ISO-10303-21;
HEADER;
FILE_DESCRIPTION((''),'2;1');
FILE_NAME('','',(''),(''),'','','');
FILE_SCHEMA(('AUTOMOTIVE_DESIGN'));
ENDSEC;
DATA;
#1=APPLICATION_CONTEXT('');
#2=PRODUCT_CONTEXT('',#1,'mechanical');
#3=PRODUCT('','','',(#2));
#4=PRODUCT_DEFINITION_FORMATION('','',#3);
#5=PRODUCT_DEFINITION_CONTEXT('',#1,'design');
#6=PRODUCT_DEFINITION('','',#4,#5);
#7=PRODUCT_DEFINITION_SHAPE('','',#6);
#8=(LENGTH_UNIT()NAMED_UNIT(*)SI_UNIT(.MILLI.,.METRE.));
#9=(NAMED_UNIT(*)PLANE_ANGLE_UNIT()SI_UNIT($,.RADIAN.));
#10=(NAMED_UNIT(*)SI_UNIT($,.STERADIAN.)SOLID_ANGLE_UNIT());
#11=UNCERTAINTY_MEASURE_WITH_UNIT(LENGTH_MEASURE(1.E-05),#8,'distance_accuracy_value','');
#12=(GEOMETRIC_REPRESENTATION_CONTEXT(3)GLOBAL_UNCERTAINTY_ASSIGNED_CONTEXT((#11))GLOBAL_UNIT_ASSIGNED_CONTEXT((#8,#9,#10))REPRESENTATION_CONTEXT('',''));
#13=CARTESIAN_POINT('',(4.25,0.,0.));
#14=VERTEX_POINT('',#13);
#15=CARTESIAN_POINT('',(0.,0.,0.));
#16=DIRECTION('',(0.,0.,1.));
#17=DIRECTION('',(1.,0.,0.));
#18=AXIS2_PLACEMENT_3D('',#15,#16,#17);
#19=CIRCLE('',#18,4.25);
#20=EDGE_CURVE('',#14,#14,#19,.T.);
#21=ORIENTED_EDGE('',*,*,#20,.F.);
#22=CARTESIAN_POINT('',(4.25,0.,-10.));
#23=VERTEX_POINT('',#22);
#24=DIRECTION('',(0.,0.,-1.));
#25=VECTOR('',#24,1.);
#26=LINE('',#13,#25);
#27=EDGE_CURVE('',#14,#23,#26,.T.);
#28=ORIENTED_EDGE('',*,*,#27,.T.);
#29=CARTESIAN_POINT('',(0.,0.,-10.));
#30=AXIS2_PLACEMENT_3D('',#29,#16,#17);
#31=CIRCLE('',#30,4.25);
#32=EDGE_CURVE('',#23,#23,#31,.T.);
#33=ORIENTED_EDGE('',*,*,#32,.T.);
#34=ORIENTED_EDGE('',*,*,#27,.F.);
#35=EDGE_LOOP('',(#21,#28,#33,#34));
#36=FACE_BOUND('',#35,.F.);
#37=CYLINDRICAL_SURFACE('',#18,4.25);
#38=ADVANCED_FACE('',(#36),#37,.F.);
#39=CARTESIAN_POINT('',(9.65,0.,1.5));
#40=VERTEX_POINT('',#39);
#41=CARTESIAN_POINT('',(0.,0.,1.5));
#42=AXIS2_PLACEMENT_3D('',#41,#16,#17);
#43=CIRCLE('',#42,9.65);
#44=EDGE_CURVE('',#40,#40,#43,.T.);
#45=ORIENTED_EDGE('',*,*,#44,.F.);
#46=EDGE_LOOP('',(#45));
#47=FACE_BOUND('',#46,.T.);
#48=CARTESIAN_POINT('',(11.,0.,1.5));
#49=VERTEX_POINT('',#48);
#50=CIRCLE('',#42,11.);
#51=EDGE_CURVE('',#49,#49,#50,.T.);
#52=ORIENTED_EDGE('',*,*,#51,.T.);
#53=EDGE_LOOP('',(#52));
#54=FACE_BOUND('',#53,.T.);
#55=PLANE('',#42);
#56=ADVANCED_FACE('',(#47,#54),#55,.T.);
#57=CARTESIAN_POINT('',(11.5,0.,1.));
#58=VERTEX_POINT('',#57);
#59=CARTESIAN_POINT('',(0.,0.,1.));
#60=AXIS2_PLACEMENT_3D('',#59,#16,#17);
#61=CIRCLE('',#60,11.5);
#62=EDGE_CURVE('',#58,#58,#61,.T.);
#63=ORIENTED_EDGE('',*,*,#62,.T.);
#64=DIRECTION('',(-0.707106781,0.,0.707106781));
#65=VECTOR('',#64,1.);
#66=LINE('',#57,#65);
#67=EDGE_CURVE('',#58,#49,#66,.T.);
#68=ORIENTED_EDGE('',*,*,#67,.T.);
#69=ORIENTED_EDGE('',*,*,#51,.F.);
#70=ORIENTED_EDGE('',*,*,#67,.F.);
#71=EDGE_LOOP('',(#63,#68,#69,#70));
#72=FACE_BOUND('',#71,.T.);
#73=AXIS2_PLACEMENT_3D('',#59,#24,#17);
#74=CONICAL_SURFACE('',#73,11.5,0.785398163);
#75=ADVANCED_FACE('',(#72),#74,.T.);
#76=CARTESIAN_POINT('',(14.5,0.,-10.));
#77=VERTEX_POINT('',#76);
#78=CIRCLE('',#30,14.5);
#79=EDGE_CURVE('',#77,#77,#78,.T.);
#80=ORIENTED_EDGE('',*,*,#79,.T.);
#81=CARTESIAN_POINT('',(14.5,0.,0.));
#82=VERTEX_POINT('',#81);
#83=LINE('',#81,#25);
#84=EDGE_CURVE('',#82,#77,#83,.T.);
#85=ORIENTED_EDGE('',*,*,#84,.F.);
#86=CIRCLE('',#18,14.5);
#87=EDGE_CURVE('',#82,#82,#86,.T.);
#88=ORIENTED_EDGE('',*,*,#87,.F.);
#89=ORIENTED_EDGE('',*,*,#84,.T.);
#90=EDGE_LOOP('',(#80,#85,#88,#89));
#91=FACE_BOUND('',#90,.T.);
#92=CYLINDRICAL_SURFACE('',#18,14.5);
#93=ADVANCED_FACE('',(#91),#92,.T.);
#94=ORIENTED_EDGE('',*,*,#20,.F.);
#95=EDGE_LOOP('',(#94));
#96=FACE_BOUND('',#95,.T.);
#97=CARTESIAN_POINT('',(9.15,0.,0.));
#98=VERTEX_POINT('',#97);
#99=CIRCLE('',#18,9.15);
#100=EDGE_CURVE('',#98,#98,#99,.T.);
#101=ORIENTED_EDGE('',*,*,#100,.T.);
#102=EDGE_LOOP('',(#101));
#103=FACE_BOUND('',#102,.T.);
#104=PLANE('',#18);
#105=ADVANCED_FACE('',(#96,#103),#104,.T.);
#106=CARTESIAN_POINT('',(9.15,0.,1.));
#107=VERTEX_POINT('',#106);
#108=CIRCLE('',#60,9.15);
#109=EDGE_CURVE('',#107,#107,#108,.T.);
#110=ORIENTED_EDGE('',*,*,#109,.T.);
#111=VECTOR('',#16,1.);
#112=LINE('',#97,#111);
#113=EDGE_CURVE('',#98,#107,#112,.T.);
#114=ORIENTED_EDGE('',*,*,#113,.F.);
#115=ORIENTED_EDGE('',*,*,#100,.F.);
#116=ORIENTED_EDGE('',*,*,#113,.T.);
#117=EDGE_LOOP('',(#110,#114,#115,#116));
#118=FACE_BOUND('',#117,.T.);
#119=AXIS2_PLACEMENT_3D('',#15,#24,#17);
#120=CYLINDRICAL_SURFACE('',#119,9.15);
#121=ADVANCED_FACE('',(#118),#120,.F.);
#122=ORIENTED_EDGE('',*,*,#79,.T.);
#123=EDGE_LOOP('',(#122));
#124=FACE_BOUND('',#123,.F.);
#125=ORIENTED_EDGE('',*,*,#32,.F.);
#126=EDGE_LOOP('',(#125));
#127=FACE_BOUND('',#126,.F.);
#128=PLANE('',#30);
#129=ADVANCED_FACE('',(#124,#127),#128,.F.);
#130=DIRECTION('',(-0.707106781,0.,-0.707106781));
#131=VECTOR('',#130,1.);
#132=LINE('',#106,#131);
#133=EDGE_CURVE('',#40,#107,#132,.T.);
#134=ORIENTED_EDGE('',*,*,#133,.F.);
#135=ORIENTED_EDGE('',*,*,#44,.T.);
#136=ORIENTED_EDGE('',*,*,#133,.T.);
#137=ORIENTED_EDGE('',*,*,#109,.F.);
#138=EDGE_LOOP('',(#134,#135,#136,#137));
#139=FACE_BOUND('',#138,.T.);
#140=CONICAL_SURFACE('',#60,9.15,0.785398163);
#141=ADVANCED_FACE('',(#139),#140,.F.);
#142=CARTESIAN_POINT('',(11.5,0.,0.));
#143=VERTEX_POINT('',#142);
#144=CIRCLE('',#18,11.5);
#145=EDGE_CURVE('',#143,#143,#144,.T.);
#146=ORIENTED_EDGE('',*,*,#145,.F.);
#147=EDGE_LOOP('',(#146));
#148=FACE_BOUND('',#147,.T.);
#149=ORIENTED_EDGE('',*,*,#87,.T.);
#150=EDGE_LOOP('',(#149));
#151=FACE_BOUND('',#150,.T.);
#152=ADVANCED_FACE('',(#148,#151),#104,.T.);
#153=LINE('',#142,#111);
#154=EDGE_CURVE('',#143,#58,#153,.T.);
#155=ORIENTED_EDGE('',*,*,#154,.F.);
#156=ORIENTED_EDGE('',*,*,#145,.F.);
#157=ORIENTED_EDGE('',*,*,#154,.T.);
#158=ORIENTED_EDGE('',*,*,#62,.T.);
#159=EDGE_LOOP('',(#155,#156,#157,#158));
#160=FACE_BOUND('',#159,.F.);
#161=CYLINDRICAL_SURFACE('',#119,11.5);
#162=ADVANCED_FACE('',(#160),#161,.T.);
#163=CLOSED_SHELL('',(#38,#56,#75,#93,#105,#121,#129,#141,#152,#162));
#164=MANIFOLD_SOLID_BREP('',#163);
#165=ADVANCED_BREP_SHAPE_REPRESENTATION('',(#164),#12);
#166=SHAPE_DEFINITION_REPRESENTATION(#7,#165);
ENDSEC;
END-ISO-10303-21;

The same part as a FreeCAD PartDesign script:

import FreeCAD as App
import Part
import Sketcher
from FreeCAD import Vector
Q = App.Units.Quantity


def edges_at(feature, points):
    """Names of the edges that pass closest to the given points."""
    edges = feature.Shape.Edges
    near = lambda p: min(range(len(edges)), key=lambda i: edges[i].distToShape(Part.Vertex(*p))[0])
    return sorted({f"Edge{near(p) + 1}" for p in points})

doc = App.newDocument("Part")
body = doc.addObject("PartDesign::Body", "Body")

sketch1 = body.newObject("Sketcher::SketchObject", "Sketch")
sketch1.AttachmentSupport = (doc.getObject("XY_Plane"), [""])
sketch1.MapMode = "FlatFace"
sketch1.addGeometry([
    Part.Circle(Vector(0, 0, 0), Vector(0, 0, 1), 14.5),
    Part.Circle(Vector(0, 0, 0), Vector(0, 0, 1), 4.2),
], False)
sketch1.addConstraint([
    Sketcher.Constraint("Coincident", 0, 3, -1, 1),
    Sketcher.Constraint("Coincident", 1, 3, -1, 1),
    Sketcher.Constraint("Diameter", 0, Q("29 mm")),
    Sketcher.Constraint("Diameter", 1, Q("8.5 mm")),
])
pad1 = body.newObject("PartDesign::Pad", "Pad")
pad1.Profile = sketch1
pad1.Length = 10
pad1.Reversed = True

sketch2 = body.newObject("Sketcher::SketchObject", "Sketch001")
sketch2.AttachmentSupport = (doc.getObject("XY_Plane"), [""])
sketch2.MapMode = "FlatFace"
sketch2.addGeometry([
    Part.Circle(Vector(0, 0, 0), Vector(0, 0, 1), 12),
    Part.Circle(Vector(0, 0, 0), Vector(0, 0, 1), 9),
], False)
sketch2.addConstraint([
    Sketcher.Constraint("Coincident", 0, 3, -1, 1),
    Sketcher.Constraint("Coincident", 1, 3, -1, 1),
    Sketcher.Constraint("Diameter", 0, Q("23 mm")),
    Sketcher.Constraint("Diameter", 1, Q("18.3 mm")),
])
pad2 = body.newObject("PartDesign::Pad", "Pad001")
pad2.Profile = sketch2
pad2.Length = 1.5
doc.recompute()

chamfer = body.newObject("PartDesign::Chamfer", "Chamfer")
chamfer.Base = (pad2, edges_at(pad2, [(-11.5, 0, 1.5), (-9.15, 0, 1.5)]))
chamfer.Size = 0.5

doc.recompute()
